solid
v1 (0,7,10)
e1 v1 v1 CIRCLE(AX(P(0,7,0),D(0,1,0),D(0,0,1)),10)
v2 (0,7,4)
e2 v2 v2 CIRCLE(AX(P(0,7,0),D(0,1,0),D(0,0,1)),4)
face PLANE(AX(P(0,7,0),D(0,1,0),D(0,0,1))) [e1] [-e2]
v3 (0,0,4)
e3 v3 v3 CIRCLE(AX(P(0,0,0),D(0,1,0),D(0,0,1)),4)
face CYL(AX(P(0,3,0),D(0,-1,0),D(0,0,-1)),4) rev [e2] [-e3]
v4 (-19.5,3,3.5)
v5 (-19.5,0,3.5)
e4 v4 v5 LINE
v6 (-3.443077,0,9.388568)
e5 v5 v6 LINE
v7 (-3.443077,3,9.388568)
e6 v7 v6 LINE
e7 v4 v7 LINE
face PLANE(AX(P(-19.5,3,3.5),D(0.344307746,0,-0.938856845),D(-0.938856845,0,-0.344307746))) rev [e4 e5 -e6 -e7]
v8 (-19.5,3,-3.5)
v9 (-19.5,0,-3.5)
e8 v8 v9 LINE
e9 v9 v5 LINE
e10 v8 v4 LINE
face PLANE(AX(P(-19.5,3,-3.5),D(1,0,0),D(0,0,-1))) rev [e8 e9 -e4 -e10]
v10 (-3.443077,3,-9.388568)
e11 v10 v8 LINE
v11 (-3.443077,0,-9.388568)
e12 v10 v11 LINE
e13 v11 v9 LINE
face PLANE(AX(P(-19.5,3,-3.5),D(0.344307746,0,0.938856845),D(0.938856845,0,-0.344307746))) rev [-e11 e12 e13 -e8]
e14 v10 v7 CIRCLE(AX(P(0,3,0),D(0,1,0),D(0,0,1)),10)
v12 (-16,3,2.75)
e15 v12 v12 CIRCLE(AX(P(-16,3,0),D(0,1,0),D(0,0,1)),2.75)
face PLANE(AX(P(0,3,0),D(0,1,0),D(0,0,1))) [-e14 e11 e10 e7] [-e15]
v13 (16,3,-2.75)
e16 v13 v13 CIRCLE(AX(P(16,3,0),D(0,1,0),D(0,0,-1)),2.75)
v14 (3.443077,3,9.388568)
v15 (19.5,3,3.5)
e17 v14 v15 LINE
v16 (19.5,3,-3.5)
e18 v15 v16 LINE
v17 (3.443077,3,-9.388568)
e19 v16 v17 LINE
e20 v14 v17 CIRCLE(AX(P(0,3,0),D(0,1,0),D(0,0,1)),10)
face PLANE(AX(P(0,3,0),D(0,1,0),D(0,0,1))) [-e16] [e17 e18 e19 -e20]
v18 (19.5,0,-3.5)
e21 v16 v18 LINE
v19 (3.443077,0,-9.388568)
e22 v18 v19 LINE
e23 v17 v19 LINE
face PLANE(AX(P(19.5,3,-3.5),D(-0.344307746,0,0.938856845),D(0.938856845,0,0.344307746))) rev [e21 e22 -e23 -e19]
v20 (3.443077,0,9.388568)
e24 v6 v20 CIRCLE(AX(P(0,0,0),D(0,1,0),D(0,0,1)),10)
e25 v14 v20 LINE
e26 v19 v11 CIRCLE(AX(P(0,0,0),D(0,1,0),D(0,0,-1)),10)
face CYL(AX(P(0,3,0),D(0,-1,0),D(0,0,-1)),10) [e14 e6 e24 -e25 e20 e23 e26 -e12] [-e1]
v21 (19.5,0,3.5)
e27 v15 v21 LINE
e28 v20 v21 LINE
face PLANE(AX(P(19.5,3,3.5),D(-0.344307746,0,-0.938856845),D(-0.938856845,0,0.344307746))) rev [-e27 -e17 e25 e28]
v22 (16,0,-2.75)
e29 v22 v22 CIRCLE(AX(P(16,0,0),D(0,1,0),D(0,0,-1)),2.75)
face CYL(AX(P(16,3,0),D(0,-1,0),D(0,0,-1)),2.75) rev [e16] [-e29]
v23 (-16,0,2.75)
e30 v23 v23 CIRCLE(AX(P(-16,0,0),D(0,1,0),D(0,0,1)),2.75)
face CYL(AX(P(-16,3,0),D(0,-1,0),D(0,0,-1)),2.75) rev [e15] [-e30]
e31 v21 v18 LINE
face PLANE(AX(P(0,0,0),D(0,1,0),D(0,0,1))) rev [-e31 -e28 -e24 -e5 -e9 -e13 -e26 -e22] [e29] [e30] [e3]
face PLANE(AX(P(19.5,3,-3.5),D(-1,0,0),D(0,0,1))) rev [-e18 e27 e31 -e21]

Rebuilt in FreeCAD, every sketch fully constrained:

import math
import FreeCAD as App
import Part
import Sketcher

V = App.Vector
Q = App.Units.Quantity

doc = App.newDocument("Part")
body = doc.addObject("PartDesign::Body", "Body")

# Sketch on XZ plane
sketch1 = doc.addObject("Sketcher::SketchObject", "Sketch")
body.addObject(sketch1)
sketch1.AttachmentSupport = (doc.XZ_Plane, [""])
sketch1.MapMode = "FlatFace"
sketch1.addGeometry([
    Part.LineSegment(V(-19.5, -3.5, 0), V(-19.5, 3.5, 0)),  # 0
    Part.LineSegment(V(-19.5, 3.5, 0), V(-3.4, 9.4, 0)),  # 1
    Part.ArcOfCircle(Part.Circle(V(0, 0, 0), V(0, 0, 1), 10), math.radians(70), math.radians(110)),  # 2
    Part.LineSegment(V(3.4, 9.4, 0), V(19.5, 3.5, 0)),  # 3
    Part.LineSegment(V(19.5, 3.5, 0), V(19.5, -3.5, 0)),  # 4
    Part.LineSegment(V(19.5, -3.5, 0), V(3.4, -9.4, 0)),  # 5
    Part.ArcOfCircle(Part.Circle(V(0, 0, 0), V(0, 0, 1), 10), math.radians(-110), math.radians(-70)),  # 6
    Part.LineSegment(V(-3.4, -9.4, 0), V(-19.5, -3.5, 0)),  # 7
    Part.Circle(V(-16, 0, 0), V(0, 0, 1), 2.8),  # 8
    Part.Circle(V(0, 0, 0), V(0, 0, 1), 4),  # 9
    Part.Circle(V(16, 0, 0), V(0, 0, 1), 2.8),  # 10
], False)
sketch1.addConstraint([
    Sketcher.Constraint("Coincident", 0, 2, 1, 1),
    Sketcher.Constraint("Tangent", 1, 2, 2, 2),
    Sketcher.Constraint("Tangent", 2, 1, 3, 1),
    Sketcher.Constraint("Coincident", 3, 2, 4, 1),
    Sketcher.Constraint("Coincident", 4, 2, 5, 1),
    Sketcher.Constraint("Tangent", 5, 2, 6, 2),
    Sketcher.Constraint("Tangent", 6, 1, 7, 1),
    Sketcher.Constraint("Coincident", 7, 2, 0, 1),
    Sketcher.Constraint("Vertical", 0),
    Sketcher.Constraint("Vertical", 4),
    Sketcher.Constraint("Coincident", 2, 3, -1, 1),
    Sketcher.Constraint("Coincident", 6, 3, -1, 1),
    Sketcher.Constraint("Coincident", 9, 3, -1, 1),
    Sketcher.Constraint("Equal", 2, 6),
    Sketcher.Constraint("Equal", 8, 10),
    Sketcher.Constraint("Symmetric", 8, 3, 10, 3, -1, 1),
    Sketcher.Constraint("Symmetric", 0, 2, 4, 2, -1, 1),
    Sketcher.Constraint("PointOnObject", 8, 3, -1),
    Sketcher.Constraint("Parallel", 3, 7),
    Sketcher.Constraint("Horizontal", 1, 2, 2, 1),
    Sketcher.Constraint("Diameter", 9, Q("8 mm")),
    Sketcher.Constraint("Radius", 2, Q("10 mm")),
    Sketcher.Constraint("Diameter", 8, Q("5.5 mm")),
    Sketcher.Constraint("DistanceY", 0, 1, 0, 2, Q("7 mm")),
    Sketcher.Constraint("DistanceX", 8, 3, -1, 1, Q("16 mm")),
    Sketcher.Constraint("DistanceX", 0, 2, -1, 1, Q("19.5 mm")),
])
pad1 = doc.addObject("PartDesign::Pad", "Pad")
body.addObject(pad1)
pad1.Profile = sketch1
pad1.Length = 3
pad1.Reversed = True

# Sketch on XZ plane
sketch2 = doc.addObject("Sketcher::SketchObject", "Sketch001")
body.addObject(sketch2)
sketch2.AttachmentSupport = (doc.XZ_Plane, [""])
sketch2.MapMode = "FlatFace"
sketch2.AttachmentOffset = App.Placement(V(0, 0, -3), App.Rotation())
sketch2.addGeometry([
    Part.Circle(V(0, 0, 0), V(0, 0, 1), 10),
    Part.Circle(V(0, 0, 0), V(0, 0, 1), 4),
], False)
sketch2.addConstraint([
    Sketcher.Constraint("Coincident", 0, 3, -1, 1),
    Sketcher.Constraint("Coincident", 1, 3, -1, 1),
    Sketcher.Constraint("Diameter", 0, Q("20 mm")),
    Sketcher.Constraint("Diameter", 1, Q("8 mm")),
])
pad2 = doc.addObject("PartDesign::Pad", "Pad001")
body.addObject(pad2)
pad2.Profile = sketch2
pad2.Length = 4
pad2.Reversed = True

doc.recompute()
